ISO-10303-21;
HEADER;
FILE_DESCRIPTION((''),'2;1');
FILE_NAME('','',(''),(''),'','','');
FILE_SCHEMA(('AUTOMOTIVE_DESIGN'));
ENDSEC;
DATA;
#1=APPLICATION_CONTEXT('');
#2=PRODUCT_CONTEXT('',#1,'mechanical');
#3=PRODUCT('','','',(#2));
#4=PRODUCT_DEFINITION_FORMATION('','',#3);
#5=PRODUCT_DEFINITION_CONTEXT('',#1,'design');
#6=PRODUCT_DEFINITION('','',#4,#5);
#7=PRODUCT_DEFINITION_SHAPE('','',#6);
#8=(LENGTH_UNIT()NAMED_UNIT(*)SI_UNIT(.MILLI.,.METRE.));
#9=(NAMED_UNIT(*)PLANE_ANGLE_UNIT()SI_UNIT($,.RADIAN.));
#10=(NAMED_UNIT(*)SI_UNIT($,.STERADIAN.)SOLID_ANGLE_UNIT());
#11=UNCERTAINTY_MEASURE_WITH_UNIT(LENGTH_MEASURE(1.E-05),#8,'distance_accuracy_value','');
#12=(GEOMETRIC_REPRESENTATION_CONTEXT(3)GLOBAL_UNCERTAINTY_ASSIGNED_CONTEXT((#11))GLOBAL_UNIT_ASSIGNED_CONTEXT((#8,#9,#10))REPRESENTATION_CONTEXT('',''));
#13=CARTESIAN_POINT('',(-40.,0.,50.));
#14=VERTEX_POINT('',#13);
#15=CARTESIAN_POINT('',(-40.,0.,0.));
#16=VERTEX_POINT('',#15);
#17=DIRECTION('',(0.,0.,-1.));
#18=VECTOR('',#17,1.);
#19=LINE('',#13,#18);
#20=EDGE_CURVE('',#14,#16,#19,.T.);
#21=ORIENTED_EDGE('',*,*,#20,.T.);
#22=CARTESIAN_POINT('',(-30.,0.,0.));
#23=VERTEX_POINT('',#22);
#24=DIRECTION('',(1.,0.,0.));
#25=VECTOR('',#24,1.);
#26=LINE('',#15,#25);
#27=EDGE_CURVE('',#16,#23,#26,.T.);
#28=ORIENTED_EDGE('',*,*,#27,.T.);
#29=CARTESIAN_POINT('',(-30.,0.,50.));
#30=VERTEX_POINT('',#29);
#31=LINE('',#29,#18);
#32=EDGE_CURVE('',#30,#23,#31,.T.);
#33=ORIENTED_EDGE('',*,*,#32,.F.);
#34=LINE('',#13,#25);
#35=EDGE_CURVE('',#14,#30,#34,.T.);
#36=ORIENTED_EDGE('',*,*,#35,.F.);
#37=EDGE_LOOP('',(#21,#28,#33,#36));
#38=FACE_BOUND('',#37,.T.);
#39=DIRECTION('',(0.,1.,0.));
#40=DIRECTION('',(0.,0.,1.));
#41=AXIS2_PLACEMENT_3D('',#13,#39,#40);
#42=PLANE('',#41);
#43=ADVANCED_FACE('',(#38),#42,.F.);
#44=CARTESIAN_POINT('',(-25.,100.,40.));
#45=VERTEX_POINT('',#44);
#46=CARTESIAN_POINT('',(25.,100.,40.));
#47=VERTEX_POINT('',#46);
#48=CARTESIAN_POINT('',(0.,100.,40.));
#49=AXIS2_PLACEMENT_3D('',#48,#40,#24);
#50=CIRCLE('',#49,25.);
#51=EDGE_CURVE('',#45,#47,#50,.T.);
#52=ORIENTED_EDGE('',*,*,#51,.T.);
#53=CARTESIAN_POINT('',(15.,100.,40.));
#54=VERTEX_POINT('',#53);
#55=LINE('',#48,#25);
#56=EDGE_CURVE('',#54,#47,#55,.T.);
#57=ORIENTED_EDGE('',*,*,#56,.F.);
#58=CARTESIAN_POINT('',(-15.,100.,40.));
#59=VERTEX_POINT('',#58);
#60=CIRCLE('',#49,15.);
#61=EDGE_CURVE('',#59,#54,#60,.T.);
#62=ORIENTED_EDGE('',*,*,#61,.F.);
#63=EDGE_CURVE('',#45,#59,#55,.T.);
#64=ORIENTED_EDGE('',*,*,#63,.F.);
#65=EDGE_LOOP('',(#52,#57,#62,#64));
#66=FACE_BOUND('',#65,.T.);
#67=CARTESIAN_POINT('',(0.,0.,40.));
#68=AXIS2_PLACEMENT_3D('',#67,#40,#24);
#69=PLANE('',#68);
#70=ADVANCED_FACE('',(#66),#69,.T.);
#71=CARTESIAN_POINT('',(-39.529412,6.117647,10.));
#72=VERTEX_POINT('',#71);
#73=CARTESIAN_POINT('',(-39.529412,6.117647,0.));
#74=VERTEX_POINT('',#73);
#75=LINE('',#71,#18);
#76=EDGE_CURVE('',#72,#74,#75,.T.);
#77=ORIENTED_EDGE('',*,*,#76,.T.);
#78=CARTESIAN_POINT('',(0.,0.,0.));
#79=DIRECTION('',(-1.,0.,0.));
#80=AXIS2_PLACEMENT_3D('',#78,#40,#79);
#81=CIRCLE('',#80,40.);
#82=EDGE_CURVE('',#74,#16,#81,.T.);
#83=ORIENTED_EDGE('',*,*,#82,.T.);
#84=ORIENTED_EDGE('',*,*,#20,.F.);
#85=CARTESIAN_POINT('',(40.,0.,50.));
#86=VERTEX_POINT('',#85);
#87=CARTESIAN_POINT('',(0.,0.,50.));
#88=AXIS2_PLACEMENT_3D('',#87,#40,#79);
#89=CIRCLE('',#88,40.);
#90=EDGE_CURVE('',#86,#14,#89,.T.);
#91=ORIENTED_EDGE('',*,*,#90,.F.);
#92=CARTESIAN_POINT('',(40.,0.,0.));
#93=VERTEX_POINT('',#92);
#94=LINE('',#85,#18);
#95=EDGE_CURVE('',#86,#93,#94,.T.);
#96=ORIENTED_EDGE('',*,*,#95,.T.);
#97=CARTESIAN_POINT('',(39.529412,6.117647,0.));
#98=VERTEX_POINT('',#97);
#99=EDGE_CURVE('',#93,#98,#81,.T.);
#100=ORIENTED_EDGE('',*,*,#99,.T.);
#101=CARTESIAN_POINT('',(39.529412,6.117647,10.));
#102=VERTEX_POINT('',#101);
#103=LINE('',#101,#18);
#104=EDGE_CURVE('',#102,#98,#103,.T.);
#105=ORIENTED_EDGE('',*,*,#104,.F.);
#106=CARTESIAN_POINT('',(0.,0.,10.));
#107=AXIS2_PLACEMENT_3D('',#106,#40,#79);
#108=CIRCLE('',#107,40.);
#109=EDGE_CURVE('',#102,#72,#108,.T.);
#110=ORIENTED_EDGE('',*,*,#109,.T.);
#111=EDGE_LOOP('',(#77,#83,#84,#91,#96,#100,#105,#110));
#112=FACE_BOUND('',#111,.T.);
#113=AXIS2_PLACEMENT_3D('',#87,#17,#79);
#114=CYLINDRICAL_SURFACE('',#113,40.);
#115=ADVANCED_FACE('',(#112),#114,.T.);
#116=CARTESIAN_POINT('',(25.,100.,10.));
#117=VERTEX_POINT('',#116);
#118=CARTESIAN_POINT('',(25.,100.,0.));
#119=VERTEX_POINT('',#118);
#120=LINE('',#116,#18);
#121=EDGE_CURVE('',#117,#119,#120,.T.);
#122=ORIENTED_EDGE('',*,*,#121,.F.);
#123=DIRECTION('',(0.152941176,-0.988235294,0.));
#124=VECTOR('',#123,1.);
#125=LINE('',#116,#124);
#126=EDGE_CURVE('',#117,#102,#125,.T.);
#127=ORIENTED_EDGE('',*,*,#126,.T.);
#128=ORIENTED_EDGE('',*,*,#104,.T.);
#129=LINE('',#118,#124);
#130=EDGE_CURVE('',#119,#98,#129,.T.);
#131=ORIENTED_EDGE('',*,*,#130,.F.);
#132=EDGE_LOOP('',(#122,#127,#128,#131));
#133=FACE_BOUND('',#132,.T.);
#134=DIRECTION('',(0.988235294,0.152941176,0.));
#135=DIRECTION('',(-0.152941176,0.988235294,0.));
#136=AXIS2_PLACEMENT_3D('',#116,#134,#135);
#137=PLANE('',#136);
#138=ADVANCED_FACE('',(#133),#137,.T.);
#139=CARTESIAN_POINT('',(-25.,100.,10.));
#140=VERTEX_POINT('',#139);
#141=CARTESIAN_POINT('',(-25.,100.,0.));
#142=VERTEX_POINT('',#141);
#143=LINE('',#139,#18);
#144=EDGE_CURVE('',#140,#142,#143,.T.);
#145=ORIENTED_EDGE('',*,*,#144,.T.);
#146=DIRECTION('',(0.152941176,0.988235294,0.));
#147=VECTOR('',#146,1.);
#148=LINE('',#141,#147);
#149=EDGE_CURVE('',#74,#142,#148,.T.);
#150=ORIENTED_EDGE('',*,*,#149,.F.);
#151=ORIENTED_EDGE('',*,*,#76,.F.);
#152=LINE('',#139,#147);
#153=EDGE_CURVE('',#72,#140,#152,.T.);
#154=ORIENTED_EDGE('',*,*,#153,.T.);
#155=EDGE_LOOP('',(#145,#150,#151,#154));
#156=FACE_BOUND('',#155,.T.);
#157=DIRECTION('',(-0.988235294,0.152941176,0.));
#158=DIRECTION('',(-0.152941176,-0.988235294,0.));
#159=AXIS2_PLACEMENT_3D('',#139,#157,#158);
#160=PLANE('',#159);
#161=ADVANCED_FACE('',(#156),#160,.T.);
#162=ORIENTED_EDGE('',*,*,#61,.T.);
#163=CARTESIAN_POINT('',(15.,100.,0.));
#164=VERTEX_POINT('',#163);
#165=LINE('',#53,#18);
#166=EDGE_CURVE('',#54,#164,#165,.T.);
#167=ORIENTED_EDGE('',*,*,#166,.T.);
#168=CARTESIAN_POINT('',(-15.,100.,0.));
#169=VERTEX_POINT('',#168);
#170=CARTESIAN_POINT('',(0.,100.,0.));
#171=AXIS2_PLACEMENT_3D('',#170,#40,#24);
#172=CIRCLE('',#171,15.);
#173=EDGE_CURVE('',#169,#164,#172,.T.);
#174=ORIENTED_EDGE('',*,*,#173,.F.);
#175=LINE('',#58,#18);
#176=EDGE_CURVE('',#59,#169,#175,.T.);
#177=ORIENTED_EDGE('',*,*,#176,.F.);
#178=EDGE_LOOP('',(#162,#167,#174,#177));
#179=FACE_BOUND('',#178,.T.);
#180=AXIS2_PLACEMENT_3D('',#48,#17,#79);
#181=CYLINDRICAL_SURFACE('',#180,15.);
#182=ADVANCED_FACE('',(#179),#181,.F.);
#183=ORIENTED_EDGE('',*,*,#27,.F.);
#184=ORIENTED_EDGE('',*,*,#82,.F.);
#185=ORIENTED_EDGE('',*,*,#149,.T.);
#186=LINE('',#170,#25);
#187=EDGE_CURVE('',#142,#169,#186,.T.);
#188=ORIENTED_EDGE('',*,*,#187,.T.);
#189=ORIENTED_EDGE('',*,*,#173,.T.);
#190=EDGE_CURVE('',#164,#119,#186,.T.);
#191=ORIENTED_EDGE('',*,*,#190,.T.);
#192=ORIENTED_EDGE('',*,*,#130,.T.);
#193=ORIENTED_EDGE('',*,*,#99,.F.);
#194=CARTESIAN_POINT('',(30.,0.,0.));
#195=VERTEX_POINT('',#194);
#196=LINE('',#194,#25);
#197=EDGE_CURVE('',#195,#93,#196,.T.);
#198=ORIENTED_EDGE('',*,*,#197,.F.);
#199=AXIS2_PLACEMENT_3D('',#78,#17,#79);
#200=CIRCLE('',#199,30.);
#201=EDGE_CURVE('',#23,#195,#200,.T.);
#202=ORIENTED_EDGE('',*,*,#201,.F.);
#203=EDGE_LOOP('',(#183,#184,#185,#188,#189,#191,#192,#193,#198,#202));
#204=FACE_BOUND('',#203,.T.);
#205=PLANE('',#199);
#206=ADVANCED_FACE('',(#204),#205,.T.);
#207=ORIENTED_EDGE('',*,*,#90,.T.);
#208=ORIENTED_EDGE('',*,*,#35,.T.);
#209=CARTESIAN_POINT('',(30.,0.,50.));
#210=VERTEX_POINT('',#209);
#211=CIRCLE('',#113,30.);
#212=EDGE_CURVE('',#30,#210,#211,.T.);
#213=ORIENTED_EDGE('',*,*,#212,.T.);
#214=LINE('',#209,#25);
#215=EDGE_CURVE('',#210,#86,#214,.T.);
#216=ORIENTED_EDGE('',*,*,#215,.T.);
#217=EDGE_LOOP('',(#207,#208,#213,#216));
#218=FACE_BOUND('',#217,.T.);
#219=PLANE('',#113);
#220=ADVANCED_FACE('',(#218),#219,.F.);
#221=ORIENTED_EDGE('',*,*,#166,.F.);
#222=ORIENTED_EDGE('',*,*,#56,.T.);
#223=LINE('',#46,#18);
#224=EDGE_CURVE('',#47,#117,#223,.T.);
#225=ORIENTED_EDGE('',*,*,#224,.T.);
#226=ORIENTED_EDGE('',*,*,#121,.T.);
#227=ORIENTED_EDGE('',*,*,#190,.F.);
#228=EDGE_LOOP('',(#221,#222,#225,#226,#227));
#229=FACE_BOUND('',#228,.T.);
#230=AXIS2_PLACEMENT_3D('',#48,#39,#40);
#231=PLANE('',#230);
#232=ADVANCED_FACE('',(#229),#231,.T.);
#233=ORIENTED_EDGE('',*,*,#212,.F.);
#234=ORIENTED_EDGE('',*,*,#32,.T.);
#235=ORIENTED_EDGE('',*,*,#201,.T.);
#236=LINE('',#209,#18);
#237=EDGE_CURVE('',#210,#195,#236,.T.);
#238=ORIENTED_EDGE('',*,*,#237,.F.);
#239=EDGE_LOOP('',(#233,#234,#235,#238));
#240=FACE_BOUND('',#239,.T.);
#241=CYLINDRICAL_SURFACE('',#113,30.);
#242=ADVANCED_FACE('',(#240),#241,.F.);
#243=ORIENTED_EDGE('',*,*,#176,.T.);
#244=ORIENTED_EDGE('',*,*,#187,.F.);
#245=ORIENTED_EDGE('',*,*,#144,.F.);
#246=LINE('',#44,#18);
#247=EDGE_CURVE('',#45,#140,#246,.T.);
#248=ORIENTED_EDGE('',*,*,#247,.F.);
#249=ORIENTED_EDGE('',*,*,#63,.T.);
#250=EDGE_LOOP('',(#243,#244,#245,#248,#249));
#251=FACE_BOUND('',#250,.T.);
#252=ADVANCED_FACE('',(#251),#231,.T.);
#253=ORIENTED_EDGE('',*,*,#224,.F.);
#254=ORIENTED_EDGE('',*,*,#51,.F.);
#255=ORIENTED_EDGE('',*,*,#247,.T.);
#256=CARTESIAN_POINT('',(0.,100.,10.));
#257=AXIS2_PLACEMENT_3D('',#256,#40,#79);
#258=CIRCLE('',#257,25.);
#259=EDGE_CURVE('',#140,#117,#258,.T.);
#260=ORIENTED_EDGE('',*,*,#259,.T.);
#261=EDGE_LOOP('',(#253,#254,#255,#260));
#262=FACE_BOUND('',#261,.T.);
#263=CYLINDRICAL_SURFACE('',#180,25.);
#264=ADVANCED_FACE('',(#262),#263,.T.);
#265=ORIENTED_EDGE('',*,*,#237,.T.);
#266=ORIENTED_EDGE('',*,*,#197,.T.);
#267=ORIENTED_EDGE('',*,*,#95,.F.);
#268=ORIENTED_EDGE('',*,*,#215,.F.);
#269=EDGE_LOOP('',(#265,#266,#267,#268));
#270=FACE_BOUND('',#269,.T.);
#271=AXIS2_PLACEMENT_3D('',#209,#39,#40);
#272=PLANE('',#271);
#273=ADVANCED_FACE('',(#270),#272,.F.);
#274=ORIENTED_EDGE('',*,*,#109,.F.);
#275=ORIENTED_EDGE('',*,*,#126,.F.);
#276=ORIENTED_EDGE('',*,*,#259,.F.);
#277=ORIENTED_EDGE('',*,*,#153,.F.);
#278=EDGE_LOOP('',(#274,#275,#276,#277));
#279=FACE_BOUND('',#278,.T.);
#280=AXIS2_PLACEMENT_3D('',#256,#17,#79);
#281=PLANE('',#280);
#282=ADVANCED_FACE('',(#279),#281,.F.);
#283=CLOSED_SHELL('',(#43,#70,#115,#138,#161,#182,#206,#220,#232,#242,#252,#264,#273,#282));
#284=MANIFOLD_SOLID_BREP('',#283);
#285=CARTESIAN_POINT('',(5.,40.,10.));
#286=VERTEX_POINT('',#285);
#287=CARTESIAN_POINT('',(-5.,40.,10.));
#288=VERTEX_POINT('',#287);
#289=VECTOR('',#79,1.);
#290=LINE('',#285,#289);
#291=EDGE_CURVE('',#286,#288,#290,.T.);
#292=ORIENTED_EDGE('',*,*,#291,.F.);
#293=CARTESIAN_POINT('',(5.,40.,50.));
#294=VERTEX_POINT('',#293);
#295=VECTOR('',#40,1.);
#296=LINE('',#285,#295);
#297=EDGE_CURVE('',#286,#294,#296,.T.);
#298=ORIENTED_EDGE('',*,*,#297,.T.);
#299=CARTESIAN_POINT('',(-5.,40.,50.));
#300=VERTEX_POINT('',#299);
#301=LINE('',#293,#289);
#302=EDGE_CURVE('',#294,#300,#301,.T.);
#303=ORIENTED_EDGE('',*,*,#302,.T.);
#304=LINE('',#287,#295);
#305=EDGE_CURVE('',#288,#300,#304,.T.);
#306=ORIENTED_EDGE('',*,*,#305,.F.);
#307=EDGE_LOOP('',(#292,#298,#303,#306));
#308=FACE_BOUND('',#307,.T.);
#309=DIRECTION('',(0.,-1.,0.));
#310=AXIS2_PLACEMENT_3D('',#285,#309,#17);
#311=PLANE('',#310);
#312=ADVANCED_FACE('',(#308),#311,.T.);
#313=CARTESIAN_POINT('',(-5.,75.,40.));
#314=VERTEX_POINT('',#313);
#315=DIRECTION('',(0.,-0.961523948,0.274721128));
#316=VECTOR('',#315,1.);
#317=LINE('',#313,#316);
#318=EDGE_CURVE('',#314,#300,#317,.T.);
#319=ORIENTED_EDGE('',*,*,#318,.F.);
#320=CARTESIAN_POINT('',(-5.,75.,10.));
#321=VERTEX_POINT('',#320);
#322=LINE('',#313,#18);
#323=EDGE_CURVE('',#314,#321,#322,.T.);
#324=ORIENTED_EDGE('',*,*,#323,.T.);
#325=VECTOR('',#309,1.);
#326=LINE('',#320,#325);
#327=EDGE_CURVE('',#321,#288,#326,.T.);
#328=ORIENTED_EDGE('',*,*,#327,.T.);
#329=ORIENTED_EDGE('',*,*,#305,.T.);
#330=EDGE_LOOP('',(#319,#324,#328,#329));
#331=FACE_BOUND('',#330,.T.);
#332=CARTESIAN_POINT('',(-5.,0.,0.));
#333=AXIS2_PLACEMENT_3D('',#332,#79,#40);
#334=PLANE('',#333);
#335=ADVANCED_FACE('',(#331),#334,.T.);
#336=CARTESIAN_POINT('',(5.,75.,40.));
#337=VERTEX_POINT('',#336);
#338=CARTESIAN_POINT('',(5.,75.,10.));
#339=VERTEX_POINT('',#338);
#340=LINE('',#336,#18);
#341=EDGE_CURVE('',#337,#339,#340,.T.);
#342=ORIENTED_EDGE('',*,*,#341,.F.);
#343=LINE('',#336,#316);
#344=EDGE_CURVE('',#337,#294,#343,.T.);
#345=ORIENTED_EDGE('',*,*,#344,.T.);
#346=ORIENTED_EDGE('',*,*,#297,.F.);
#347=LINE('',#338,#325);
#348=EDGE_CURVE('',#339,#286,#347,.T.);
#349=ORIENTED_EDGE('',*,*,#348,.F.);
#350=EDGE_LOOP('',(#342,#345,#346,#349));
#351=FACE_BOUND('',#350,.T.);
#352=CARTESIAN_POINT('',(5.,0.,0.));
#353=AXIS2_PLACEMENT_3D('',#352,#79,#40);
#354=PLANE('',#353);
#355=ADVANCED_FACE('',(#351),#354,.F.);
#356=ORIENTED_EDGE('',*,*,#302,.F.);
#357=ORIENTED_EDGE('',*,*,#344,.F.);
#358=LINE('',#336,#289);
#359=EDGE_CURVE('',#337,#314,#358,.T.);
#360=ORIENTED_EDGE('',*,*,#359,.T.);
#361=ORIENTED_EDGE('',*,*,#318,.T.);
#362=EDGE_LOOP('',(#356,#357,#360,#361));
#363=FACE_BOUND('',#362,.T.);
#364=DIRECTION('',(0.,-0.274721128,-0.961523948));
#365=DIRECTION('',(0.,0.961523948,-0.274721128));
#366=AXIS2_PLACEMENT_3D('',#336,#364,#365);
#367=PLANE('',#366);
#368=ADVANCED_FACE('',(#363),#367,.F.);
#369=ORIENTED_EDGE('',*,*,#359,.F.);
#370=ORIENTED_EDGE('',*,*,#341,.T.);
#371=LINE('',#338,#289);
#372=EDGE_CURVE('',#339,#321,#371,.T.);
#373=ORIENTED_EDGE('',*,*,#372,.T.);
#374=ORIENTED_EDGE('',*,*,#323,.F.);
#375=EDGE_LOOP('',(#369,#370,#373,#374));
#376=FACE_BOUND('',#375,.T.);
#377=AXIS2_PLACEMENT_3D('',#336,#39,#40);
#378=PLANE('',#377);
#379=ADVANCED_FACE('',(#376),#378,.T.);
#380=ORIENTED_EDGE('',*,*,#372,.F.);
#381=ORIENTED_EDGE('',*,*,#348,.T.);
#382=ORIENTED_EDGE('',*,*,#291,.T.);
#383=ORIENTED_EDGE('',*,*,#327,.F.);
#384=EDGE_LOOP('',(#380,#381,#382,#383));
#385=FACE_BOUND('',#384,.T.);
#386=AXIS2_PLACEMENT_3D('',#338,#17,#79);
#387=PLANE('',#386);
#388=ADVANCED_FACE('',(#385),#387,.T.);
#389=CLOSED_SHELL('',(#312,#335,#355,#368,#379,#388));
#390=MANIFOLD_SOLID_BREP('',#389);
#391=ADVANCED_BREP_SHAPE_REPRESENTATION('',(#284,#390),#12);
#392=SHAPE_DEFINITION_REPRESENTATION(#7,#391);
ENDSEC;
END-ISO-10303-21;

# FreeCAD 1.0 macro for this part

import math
import FreeCAD as App
import Part
import Sketcher

doc = App.newDocument("Part")
params = doc.addObject("Spreadsheet::Sheet", "Params")
for row, (alias, value) in enumerate([
    ("sketch1_radius", "30 mm"),
    ("sketch1_radius2", "40 mm"),
    ("pad1_length", "50 mm"),
    ("sketch2_radius", "25 mm"),
    ("sketch2_radius2", "15 mm"),
    ("pad2_length", "40 mm"),
    ("sketch3_radius", "40 mm"),
    ("sketch3_radius2", "25 mm"),
    ("sketch3_length", "95 mm"),
    ("pad3_length", "10 mm"),
    ("sketch4_width", "35 mm"),
    ("sketch4_height", "40 mm"),
    ("sketch4_height2", "30 mm"),
    ("pad4_length", "10 mm"),
], start=1):
    params.set(f"A{row}", alias)
    params.set(f"B{row}", "=" + value)
    params.setAlias(f"B{row}", alias)

body = doc.addObject("PartDesign::Body", "Body")

sketch1 = doc.addObject("Sketcher::SketchObject", "Sketch")
body.addObject(sketch1)
sketch1.AttachmentSupport = (doc.XY_Plane, [""])
sketch1.MapMode = "FlatFace"
sketch1.addGeometry([
    Part.LineSegment(App.Vector(-40, 0, 0), App.Vector(-30, 0, 0)),
    Part.ArcOfCircle(Part.Circle(App.Vector(0, 0, 0), App.Vector(0, 0, 1), 30), math.radians(0), math.radians(180)),
    Part.LineSegment(App.Vector(30, 0, 0), App.Vector(40, 0, 0)),
    Part.ArcOfCircle(Part.Circle(App.Vector(0, 0, 0), App.Vector(0, 0, 1), 40), math.radians(0), math.radians(180)),
], False)
sketch1.addConstraint([
    Sketcher.Constraint("Coincident", 0, 2, 1, 2),
    Sketcher.Constraint("Coincident", 1, 1, 2, 1),
    Sketcher.Constraint("Coincident", 2, 2, 3, 1),
    Sketcher.Constraint("Coincident", 3, 2, 0, 1),
    Sketcher.Constraint("Horizontal", 0),
    Sketcher.Constraint("Horizontal", 2),
    Sketcher.Constraint("Coincident", 1, 3, -1, 1),
    Sketcher.Constraint("Coincident", 3, 3, -1, 1),
    Sketcher.Constraint("PointOnObject", 0, 2, -1),
    Sketcher.Constraint("PointOnObject", 1, 1, -1),
    Sketcher.Constraint("Radius", 1, 30.0),
    Sketcher.Constraint("Radius", 3, 40.0),
])
sketch1.setExpression("Constraints[10]", "Params.sketch1_radius")
sketch1.setExpression("Constraints[11]", "Params.sketch1_radius2")
pad1 = doc.addObject("PartDesign::Pad", "Pad")
body.addObject(pad1)
pad1.Profile = sketch1
pad1.setExpression("Length", "Params.pad1_length")
body2 = doc.addObject("PartDesign::Body", "Body001")

sketch2 = doc.addObject("Sketcher::SketchObject", "Sketch001")
body2.addObject(sketch2)
sketch2.AttachmentSupport = (doc.getObject("XY_Plane001"), [""])
sketch2.MapMode = "FlatFace"
sketch2.addGeometry([
    Part.LineSegment(App.Vector(-15, 100, 0), App.Vector(-25, 100, 0)),
    Part.ArcOfCircle(Part.Circle(App.Vector(0, 100, 0), App.Vector(0, 0, 1), 25), math.radians(180), math.radians(360)),
    Part.LineSegment(App.Vector(25, 100, 0), App.Vector(15, 100, 0)),
    Part.ArcOfCircle(Part.Circle(App.Vector(0, 100, 0), App.Vector(0, 0, 1), 15), math.radians(180), math.radians(360)),
], False)
sketch2.addConstraint([
    Sketcher.Constraint("Coincident", 0, 2, 1, 1),
    Sketcher.Constraint("Coincident", 1, 2, 2, 1),
    Sketcher.Constraint("Coincident", 2, 2, 3, 2),
    Sketcher.Constraint("Coincident", 3, 1, 0, 1),
    Sketcher.Constraint("Horizontal", 0),
    Sketcher.Constraint("Horizontal", 2),
    Sketcher.Constraint("Coincident", 3, 3, 1, 3),
    Sketcher.Constraint("Symmetric", 0, 2, 1, 2, -2),
    Sketcher.Constraint("Horizontal", 3, 3, 0, 2),
    Sketcher.Constraint("Radius", 1, 25.0),
    Sketcher.Constraint("Radius", 3, 15.0),
    Sketcher.Constraint("DistanceY", -1, 1, 1, 3, 100.0),
])
sketch2.setExpression("Constraints[9]", "Params.sketch2_radius")
sketch2.setExpression("Constraints[10]", "Params.sketch2_radius2")
pad2 = doc.addObject("PartDesign::Pad", "Pad001")
body2.addObject(pad2)
pad2.Profile = sketch2
pad2.setExpression("Length", "Params.pad2_length")
body.AllowCompound = True
doc.recompute()

boolean = doc.addObject("PartDesign::Boolean", "Boolean")
body.addObject(boolean)
boolean.Type = "Fuse"
boolean.addObjects([body2])

sketch3 = doc.addObject("Sketcher::SketchObject", "Sketch002")
body.addObject(sketch3)
sketch3.AttachmentSupport = (doc.XY_Plane, [""])
sketch3.MapMode = "FlatFace"
sketch3.addGeometry([
    Part.LineSegment(App.Vector(25, 100, 0), App.Vector(40, 6, 0)),
    Part.ArcOfCircle(Part.Circle(App.Vector(0, 0, 0), App.Vector(0, 0, 1), 40), math.radians(9), math.radians(171)),
    Part.LineSegment(App.Vector(-40, 6, 0), App.Vector(-25, 100, 0)),
    Part.ArcOfCircle(Part.Circle(App.Vector(0, 100, 0), App.Vector(0, 0, 1), 25), math.radians(180), math.radians(360)),
], False)
sketch3.addConstraint([
    Sketcher.Constraint("Tangent", 0, 2, 1, 1),
    Sketcher.Constraint("Tangent", 1, 2, 2, 1),
    Sketcher.Constraint("Coincident", 2, 2, 3, 1),
    Sketcher.Constraint("Coincident", 3, 2, 0, 1),
    Sketcher.Constraint("Coincident", 1, 3, -1, 1),
    Sketcher.Constraint("Symmetric", 2, 2, 3, 2, -2),
    Sketcher.Constraint("Horizontal", 3, 3, 2, 2),
    Sketcher.Constraint("Radius", 1, 40.0),
    Sketcher.Constraint("Radius", 3, 25.0),
    Sketcher.Constraint("Distance", 0, 95.0),
])
sketch3.setExpression("Constraints[7]", "Params.sketch3_radius")
sketch3.setExpression("Constraints[8]", "Params.sketch3_radius2")
sketch3.setExpression("Constraints[9]", "Params.sketch3_length")
pad3 = doc.addObject("PartDesign::Pad", "Pad002")
body.addObject(pad3)
pad3.Profile = sketch3
pad3.setExpression("Length", "Params.pad3_length")
body3 = doc.addObject("PartDesign::Body", "Body002")

sketch4 = doc.addObject("Sketcher::SketchObject", "Sketch003")
body3.addObject(sketch4)
sketch4.AttachmentSupport = (doc.getObject("YZ_Plane002"), [""])
sketch4.MapMode = "FlatFace"
sketch4.addGeometry([
    Part.LineSegment(App.Vector(75, 40, 0), App.Vector(40, 50, 0)),
    Part.LineSegment(App.Vector(40, 50, 0), App.Vector(40, 10, 0)),
    Part.LineSegment(App.Vector(40, 10, 0), App.Vector(75, 10, 0)),
    Part.LineSegment(App.Vector(75, 10, 0), App.Vector(75, 40, 0)),
], False)
sketch4.addConstraint([
    Sketcher.Constraint("Coincident", 0, 2, 1, 1),
    Sketcher.Constraint("Coincident", 1, 2, 2, 1),
    Sketcher.Constraint("Coincident", 2, 2, 3, 1),
    Sketcher.Constraint("Coincident", 3, 2, 0, 1),
    Sketcher.Constraint("Vertical", 1),
    Sketcher.Constraint("Horizontal", 2),
    Sketcher.Constraint("Vertical", 3),
    Sketcher.Constraint("DistanceX", 2, 1, 2, 2, 35.0),
    Sketcher.Constraint("DistanceY", 1, 2, 1, 1, 40.0),
    Sketcher.Constraint("DistanceY", 3, 1, 3, 2, 30.0),
    Sketcher.Constraint("DistanceX", -1, 1, 0, 2, 40.0),
    Sketcher.Constraint("DistanceY", -1, 1, 0, 2, 50.0),
])
sketch4.setExpression("Constraints[7]", "Params.sketch4_width")
sketch4.setExpression("Constraints[8]", "Params.sketch4_height")
sketch4.setExpression("Constraints[9]", "Params.sketch4_height2")
pad4 = doc.addObject("PartDesign::Pad", "Pad003")
body3.addObject(pad4)
pad4.Profile = sketch4
pad4.setExpression("Length", "Params.pad4_length")
pad4.Midplane = True

doc.recompute()
